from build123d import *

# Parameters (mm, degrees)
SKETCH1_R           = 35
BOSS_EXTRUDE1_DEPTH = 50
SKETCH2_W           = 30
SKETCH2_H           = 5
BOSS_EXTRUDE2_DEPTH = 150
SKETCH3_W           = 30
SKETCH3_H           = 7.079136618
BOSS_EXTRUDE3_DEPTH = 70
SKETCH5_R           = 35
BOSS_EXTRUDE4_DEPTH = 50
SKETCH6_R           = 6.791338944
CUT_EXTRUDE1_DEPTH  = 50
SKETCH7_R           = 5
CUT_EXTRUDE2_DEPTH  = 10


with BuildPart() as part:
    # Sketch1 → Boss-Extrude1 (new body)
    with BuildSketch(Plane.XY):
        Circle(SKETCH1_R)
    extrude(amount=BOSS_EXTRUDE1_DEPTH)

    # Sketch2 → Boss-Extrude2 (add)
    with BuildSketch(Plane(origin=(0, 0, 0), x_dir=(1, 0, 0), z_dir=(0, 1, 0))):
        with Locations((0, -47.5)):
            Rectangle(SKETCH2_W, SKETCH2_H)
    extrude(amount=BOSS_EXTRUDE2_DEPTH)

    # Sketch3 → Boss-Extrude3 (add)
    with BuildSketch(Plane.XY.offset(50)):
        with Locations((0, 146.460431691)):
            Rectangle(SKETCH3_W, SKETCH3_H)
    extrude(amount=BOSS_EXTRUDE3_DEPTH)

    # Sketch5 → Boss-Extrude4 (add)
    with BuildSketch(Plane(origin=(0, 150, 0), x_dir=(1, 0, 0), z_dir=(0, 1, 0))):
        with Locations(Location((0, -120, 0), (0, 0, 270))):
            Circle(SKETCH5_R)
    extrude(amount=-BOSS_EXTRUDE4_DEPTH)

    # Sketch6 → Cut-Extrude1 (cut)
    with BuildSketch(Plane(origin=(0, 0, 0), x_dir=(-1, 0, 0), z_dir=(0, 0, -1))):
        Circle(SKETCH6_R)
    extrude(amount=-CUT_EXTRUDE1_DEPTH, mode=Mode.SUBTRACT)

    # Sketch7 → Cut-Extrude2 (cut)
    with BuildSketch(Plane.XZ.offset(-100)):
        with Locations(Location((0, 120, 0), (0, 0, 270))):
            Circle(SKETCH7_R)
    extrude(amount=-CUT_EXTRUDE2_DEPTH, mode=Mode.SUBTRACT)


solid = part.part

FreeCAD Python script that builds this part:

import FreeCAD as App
import Part
import Sketcher


def add_polygon(sketch, points):
    """Adds a closed chain of lines whose ends are joined by coincident constraints."""
    first, n = sketch.GeometryCount, len(points)
    for a, b in zip(points, points[1:] + points[:1]):
        sketch.addGeometry(Part.LineSegment(App.Vector(*a, 0), App.Vector(*b, 0)), False)
    for i in range(n):
        sketch.addConstraint(Sketcher.Constraint("Coincident", first + i, 2, first + (i + 1) % n, 1))

doc = App.newDocument("Part")
body = doc.addObject("PartDesign::Body", "Body")

# Sketch on XY plane
sketch1 = body.newObject("Sketcher::SketchObject", "Sketch")
sketch1.AttachmentSupport = (doc.getObject("XY_Plane"), [""])
sketch1.MapMode = "FlatFace"
sketch1.addGeometry(Part.Circle(App.Vector(0, 0, 0), App.Vector(0, 0, 1), 35), False)
sketch1.addConstraint([
    Sketcher.Constraint("Coincident", 0, 3, -1, 1),
    Sketcher.Constraint("Diameter", 0, 70.0),
])
pad1 = body.newObject("PartDesign::Pad", "Pad")
pad1.Profile = sketch1
pad1.Length = 50

# Sketch on XZ plane
sketch2 = body.newObject("Sketcher::SketchObject", "Sketch001")
sketch2.AttachmentSupport = (doc.getObject("XZ_Plane"), [""])
sketch2.MapMode = "FlatFace"
add_polygon(sketch2, [(-15, 45), (-15, 50), (15, 50), (15, 45)])  # lines 0-3
sketch2.addConstraint([
    Sketcher.Constraint("Vertical", 0),
    Sketcher.Constraint("Horizontal", 1),
    Sketcher.Constraint("Vertical", 2),
    Sketcher.Constraint("Horizontal", 3),
    Sketcher.Constraint("DistanceX", 1, 1, 1, 2, 30.0),
    Sketcher.Constraint("DistanceY", 0, 1, 0, 2, 5.0),
    Sketcher.Constraint("DistanceX", 0, 2, -1, 1, 15.0),
    Sketcher.Constraint("DistanceY", -1, 1, 0, 2, 50.0),
])
pad2 = body.newObject("PartDesign::Pad", "Pad001")
pad2.Profile = sketch2
pad2.Length = 150
pad2.Reversed = True

# Sketch on XY plane
sketch3 = body.newObject("Sketcher::SketchObject", "Sketch002")
sketch3.AttachmentSupport = (doc.getObject("XY_Plane"), [""])
sketch3.MapMode = "FlatFace"
sketch3.AttachmentOffset = App.Placement(App.Vector(0, 0, 50), App.Rotation())
add_polygon(sketch3, [(-15, 150), (-15, 142.920863), (15, 142.920863), (15, 150)])  # lines 0-3
sketch3.addConstraint([
    Sketcher.Constraint("Vertical", 0),
    Sketcher.Constraint("Horizontal", 1),
    Sketcher.Constraint("Vertical", 2),
    Sketcher.Constraint("Horizontal", 3),
    Sketcher.Constraint("DistanceX", 1, 1, 1, 2, 30.0),
    Sketcher.Constraint("DistanceX", 0, 2, -1, 1, 15.0),
    Sketcher.Constraint("DistanceY", -1, 1, 2, 2, 150.0),
    Sketcher.Constraint("DistanceY", 0, 2, 0, 1, 7.079137),
])
pad3 = body.newObject("PartDesign::Pad", "Pad002")
pad3.Profile = sketch3
pad3.Length = 70

# Sketch on XZ plane
sketch4 = body.newObject("Sketcher::SketchObject", "Sketch003")
sketch4.AttachmentSupport = (doc.getObject("XZ_Plane"), [""])
sketch4.MapMode = "FlatFace"
sketch4.AttachmentOffset = App.Placement(App.Vector(0, 0, -150), App.Rotation())
sketch4.addGeometry(Part.Circle(App.Vector(0, 120, 0), App.Vector(0, 0, 1), 35), False)
sketch4.addConstraint([
    Sketcher.Constraint("PointOnObject", 0, 3, -2),
    Sketcher.Constraint("Diameter", 0, 70.0),
    Sketcher.Constraint("DistanceY", -1, 1, 0, 3, 120.0),
])
pad4 = body.newObject("PartDesign::Pad", "Pad003")
pad4.Profile = sketch4
pad4.Length = 50

# Sketch on XY plane
sketch5 = body.newObject("Sketcher::SketchObject", "Sketch004")
sketch5.AttachmentSupport = (doc.getObject("XY_Plane"), [""])
sketch5.MapMode = "FlatFace"
sketch5.addGeometry(Part.Circle(App.Vector(0, 0, 0), App.Vector(0, 0, 1), 6.791339), False)
sketch5.addConstraint([
    Sketcher.Constraint("Coincident", 0, 3, -1, 1),
    Sketcher.Constraint("Diameter", 0, 13.582678),
])
pocket1 = body.newObject("PartDesign::Pocket", "Pocket")
pocket1.Profile = sketch5
pocket1.Length = 50
pocket1.Reversed = True

# Sketch on XZ plane
sketch6 = body.newObject("Sketcher::SketchObject", "Sketch005")
sketch6.AttachmentSupport = (doc.getObject("XZ_Plane"), [""])
sketch6.MapMode = "FlatFace"
sketch6.AttachmentOffset = App.Placement(App.Vector(0, 0, -100), App.Rotation())
sketch6.addGeometry(Part.Circle(App.Vector(0, 120, 0), App.Vector(0, 0, 1), 5), False)
sketch6.addConstraint([
    Sketcher.Constraint("PointOnObject", 0, 3, -2),
    Sketcher.Constraint("Diameter", 0, 10.0),
    Sketcher.Constraint("DistanceY", -1, 1, 0, 3, 120.0),
])
pocket2 = body.newObject("PartDesign::Pocket", "Pocket001")
pocket2.Profile = sketch6
pocket2.Length = 10

doc.recompute()
